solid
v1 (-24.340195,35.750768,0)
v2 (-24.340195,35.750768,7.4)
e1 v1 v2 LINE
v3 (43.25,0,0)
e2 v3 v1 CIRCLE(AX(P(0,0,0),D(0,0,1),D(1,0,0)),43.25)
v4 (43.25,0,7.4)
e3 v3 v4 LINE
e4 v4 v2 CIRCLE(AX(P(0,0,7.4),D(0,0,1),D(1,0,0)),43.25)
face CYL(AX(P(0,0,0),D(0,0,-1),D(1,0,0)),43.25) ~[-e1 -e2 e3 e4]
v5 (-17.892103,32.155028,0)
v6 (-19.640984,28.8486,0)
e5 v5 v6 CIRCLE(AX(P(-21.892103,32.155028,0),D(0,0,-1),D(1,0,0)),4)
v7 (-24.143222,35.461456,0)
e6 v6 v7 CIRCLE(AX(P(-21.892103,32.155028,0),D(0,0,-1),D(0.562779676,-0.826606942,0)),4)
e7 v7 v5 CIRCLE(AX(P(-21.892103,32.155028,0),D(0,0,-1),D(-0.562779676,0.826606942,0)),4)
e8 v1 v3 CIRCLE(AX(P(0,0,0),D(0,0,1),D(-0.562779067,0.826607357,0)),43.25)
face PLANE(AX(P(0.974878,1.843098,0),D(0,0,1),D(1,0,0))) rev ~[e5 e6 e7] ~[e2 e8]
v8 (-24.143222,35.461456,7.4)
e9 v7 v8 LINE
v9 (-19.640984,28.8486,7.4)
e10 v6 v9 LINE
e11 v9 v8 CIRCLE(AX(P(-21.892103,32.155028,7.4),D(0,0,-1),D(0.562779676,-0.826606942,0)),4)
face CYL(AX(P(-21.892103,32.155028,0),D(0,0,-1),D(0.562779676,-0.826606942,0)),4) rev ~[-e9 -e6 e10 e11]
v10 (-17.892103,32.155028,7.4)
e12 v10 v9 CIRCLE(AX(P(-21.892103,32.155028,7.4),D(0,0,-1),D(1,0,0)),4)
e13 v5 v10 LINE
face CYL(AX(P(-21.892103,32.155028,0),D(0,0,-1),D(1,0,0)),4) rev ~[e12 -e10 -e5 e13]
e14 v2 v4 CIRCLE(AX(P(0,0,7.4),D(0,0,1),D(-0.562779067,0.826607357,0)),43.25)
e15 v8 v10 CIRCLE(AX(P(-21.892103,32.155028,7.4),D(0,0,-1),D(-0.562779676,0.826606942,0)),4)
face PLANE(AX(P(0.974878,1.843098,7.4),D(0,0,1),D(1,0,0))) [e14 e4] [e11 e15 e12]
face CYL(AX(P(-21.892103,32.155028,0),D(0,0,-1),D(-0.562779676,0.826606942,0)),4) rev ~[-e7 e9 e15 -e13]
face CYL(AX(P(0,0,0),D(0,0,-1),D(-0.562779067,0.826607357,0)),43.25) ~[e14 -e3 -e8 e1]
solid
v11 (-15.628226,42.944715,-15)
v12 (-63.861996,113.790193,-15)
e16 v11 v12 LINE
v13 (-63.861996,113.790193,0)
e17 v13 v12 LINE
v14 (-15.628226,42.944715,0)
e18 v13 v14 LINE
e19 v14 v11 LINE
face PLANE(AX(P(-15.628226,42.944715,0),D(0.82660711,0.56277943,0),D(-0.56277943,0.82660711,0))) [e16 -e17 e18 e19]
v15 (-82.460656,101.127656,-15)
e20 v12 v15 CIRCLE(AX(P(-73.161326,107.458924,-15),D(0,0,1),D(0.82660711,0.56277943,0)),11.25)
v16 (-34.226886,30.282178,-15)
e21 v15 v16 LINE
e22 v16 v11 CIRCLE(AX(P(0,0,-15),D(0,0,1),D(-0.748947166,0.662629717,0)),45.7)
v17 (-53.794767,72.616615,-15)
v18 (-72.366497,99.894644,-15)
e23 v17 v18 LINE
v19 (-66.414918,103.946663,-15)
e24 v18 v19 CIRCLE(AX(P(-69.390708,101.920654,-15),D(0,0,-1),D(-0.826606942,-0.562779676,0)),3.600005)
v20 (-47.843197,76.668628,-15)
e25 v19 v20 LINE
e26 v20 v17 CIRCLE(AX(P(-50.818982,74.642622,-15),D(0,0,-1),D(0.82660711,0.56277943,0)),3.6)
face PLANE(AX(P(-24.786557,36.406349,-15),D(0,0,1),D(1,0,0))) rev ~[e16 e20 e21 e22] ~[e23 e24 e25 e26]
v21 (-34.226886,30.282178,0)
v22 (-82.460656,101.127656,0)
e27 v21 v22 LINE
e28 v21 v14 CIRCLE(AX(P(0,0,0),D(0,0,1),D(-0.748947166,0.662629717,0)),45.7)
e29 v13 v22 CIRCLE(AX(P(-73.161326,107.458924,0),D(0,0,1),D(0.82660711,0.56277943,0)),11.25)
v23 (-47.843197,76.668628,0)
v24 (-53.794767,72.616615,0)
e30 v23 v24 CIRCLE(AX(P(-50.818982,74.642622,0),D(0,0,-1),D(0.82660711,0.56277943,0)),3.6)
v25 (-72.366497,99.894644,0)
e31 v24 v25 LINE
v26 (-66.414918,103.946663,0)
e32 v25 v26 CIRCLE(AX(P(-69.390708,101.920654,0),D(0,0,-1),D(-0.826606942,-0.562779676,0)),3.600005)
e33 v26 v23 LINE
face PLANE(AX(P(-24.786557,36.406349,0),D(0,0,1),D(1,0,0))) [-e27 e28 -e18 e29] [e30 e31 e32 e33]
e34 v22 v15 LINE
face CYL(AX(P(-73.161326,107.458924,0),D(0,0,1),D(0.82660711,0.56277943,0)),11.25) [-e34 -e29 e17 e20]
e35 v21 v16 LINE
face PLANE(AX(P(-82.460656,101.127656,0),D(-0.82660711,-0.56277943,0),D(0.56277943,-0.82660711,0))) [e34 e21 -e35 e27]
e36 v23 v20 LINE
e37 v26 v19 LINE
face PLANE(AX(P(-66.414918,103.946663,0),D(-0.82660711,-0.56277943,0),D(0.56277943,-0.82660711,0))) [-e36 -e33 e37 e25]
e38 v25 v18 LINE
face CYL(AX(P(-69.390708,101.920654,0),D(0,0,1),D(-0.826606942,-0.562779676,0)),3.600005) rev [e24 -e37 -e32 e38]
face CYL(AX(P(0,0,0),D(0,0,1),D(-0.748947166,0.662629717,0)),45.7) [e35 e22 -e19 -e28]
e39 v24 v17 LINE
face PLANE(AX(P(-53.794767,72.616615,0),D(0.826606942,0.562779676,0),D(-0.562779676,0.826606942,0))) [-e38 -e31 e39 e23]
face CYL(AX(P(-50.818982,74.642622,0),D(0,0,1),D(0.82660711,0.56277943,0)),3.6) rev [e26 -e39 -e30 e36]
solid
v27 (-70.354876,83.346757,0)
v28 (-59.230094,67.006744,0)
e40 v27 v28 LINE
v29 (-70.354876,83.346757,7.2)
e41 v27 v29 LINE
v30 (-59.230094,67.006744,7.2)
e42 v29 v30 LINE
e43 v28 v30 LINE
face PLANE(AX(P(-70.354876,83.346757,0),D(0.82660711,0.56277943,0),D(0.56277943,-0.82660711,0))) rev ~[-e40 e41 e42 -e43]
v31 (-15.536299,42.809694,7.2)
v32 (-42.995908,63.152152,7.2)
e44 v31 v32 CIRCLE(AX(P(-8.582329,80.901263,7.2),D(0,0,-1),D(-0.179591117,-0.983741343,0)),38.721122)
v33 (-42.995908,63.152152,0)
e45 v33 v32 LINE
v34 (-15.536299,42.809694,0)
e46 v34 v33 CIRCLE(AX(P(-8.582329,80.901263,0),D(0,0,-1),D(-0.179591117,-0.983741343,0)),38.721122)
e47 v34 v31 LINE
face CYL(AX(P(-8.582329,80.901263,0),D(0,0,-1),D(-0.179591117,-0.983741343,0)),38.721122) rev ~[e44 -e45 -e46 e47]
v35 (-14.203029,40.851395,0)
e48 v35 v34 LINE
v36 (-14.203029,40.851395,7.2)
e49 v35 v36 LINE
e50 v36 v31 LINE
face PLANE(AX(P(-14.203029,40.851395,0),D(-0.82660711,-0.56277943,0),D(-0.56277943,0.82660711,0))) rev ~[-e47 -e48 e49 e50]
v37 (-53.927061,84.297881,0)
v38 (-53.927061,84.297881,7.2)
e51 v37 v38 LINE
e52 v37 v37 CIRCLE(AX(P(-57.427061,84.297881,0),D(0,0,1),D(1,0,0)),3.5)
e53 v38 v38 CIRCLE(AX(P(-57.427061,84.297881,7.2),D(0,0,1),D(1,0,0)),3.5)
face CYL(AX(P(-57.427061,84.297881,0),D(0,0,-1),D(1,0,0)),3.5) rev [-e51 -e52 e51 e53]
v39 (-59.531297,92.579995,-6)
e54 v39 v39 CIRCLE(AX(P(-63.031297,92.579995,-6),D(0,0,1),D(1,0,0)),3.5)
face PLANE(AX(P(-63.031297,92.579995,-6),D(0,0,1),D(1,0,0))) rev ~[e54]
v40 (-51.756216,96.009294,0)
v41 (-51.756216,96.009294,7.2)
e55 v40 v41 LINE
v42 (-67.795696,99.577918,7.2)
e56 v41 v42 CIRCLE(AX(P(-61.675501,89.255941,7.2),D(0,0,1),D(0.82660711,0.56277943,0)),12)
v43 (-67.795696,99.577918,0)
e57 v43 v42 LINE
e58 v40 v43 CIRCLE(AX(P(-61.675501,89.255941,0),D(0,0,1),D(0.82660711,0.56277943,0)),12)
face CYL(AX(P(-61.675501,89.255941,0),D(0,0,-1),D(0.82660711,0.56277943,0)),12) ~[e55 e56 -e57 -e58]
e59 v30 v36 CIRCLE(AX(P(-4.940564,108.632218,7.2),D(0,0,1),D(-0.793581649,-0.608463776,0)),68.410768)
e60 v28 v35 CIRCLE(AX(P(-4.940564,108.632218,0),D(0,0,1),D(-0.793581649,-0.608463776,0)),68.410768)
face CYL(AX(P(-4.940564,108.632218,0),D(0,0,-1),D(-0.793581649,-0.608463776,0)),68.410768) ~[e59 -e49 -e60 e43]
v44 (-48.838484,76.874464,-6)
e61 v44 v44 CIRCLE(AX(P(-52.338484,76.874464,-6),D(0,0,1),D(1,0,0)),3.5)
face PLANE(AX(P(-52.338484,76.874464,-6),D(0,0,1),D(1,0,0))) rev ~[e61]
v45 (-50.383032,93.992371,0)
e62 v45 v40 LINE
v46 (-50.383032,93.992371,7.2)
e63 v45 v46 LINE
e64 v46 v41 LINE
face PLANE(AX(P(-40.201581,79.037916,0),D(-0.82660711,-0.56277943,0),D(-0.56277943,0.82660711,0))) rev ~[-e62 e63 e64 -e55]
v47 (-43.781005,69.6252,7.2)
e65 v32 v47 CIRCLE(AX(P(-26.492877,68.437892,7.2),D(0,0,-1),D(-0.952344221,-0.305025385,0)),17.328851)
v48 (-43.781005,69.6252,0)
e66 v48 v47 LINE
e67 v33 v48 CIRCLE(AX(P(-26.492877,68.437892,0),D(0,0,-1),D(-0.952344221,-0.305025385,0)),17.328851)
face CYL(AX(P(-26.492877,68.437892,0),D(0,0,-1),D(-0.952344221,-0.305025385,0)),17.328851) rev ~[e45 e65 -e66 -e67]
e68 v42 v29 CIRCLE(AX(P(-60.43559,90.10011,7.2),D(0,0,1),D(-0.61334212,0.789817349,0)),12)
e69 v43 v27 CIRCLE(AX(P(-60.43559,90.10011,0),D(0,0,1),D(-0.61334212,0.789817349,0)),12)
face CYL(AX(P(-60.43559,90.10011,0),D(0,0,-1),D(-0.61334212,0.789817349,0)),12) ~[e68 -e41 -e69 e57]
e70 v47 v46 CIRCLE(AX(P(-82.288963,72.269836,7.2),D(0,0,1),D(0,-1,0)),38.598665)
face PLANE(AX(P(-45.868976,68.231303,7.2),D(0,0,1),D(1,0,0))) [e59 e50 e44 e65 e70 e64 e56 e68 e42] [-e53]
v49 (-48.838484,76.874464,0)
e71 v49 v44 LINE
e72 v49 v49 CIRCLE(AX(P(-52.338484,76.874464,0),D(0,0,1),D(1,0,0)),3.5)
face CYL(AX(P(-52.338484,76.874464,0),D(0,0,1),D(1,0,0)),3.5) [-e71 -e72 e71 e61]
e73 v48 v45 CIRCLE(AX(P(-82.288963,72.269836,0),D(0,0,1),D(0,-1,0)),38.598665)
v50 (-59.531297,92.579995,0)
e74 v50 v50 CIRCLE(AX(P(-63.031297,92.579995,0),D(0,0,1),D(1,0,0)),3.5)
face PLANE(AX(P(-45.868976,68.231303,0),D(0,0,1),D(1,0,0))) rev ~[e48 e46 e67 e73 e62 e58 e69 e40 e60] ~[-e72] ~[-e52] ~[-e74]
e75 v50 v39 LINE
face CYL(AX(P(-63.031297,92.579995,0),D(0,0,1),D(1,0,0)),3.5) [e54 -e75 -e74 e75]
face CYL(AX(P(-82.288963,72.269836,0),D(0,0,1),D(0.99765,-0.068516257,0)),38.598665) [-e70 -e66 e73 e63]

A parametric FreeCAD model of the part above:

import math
import FreeCAD as App
import Part
import Sketcher

V = App.Vector
Q = App.Units.Quantity


def edges_at(feature, points):
    """Names of the edges that pass closest to the given points."""
    edges = feature.Shape.Edges
    near = lambda p: min(range(len(edges)), key=lambda i: edges[i].distToShape(Part.Vertex(*p))[0])
    return sorted({f"Edge{near(p) + 1}" for p in points})

doc = App.newDocument("Part")
params = doc.addObject("Spreadsheet::Sheet", "Params")
for row, (alias, value) in enumerate([
    ("sketch1_radius", "45.7 mm"),
    ("sketch1_radius2", "3.6 mm"),
    ("sketch1_radius3", "11.25 mm"),
    ("sketch1_length", "33 mm"),
    ("sketch1_length2", "33 mm"),
    ("pad1_length", "15 mm"),
    ("sketch2_radius", "43.25 mm"),
    ("pocket1_length", "25 mm"),
    ("sketch3_radius", "4 mm"),
    ("sketch3_radius2", "43.25 mm"),
    ("pad2_length", "7.4 mm"),
    ("sketch4_diameter", "7 mm"),
    ("sketch4_radius", "12 mm"),
    ("sketch4_radius2", "12 mm"),
    ("pad3_length", "7.2 mm"),
    ("sketch5_diameter", "7 mm"),
    ("pad4_length", "6 mm"),
    ("fillet_radius", "38.598665 mm"),
], start=1):
    params.set(f"A{row}", alias)
    params.set(f"B{row}", "=" + value)
    params.setAlias(f"B{row}", alias)

body = doc.addObject("PartDesign::Body", "Body")

# Sketch on XY plane
sketch1 = body.newObject("Sketcher::SketchObject", "Sketch")
sketch1.AttachmentSupport = (doc.getObject("XY_Plane"), [""])
sketch1.MapMode = "FlatFace"
sketch1.addGeometry(Part.LineSegment(V(-82.460656, 101.127656, 0), V(-34.226886, 30.282178, 0)), False)
sketch1.addGeometry(Part.ArcOfCircle(Part.Circle(V(0, 0, 0), V(0, 0, 1), 45.7), math.radians(138.49926), math.radians(469.997205)), False)
sketch1.addGeometry(Part.LineSegment(V(-15.628226, 42.944715, 0), V(-63.861996, 113.790193, 0)), False)
sketch1.addGeometry(Part.ArcOfCircle(Part.Circle(V(-73.161326, 107.458924, 0), V(0, 0, 1), 11.25), math.radians(34.248233), math.radians(214.248233)), False)
sketch1.addGeometry(Part.ArcOfCircle(Part.Circle(V(-69.390708, 101.920654, 0), V(0, 0, 1), 3.600005), math.radians(34.248233), math.radians(214.24825)), False)
sketch1.addGeometry(Part.LineSegment(V(-66.414918, 103.946663, 0), V(-47.843197, 76.668628, 0)), False)
sketch1.addGeometry(Part.ArcOfCircle(Part.Circle(V(-50.818982, 74.642622, 0), V(0, 0, 1), 3.6), math.radians(-145.75175), math.radians(34.248233)), False)
sketch1.addGeometry(Part.LineSegment(V(-53.794767, 72.616615, 0), V(-72.366497, 99.894644, 0)), False)
sketch1.addConstraint(Sketcher.Constraint("Coincident", 0, 2, 1, 1))
sketch1.addConstraint(Sketcher.Constraint("Coincident", 1, 2, 2, 1))
sketch1.addConstraint(Sketcher.Constraint("Coincident", 2, 2, 3, 1))
sketch1.addConstraint(Sketcher.Constraint("Coincident", 3, 2, 0, 1))
sketch1.addConstraint(Sketcher.Constraint("Coincident", 4, 1, 5, 1))
sketch1.addConstraint(Sketcher.Constraint("Coincident", 5, 2, 6, 2))
sketch1.addConstraint(Sketcher.Constraint("Coincident", 6, 1, 7, 1))
sketch1.addConstraint(Sketcher.Constraint("Coincident", 7, 2, 4, 2))
sketch1.addConstraint(Sketcher.Constraint("Coincident", 1, 3, -1, 1))
sketch1.addConstraint(Sketcher.Constraint("Radius", 1, Q("45.7 mm")))
sketch1.addConstraint(Sketcher.Constraint("Radius", 6, Q("3.6 mm")))
sketch1.addConstraint(Sketcher.Constraint("Radius", 3, Q("11.25 mm")))
sketch1.addConstraint(Sketcher.Constraint("Distance", 5, Q("33 mm")))
sketch1.addConstraint(Sketcher.Constraint("Distance", 7, Q("33 mm")))
sketch1.addConstraint(Sketcher.Constraint("Radius", 4, Q("3.600005 mm")))
sketch1.addConstraint(Sketcher.Constraint("DistanceY", 3, 2, 4, 3, Q("0.792998 mm")))
sketch1.addConstraint(Sketcher.Constraint("DistanceX", 3, 3, 1, 2, Q("57.5331 mm")))
sketch1.addConstraint(Sketcher.Constraint("DistanceX", 2, 2, 5, 2, Q("16.018799 mm")))
sketch1.addConstraint(Sketcher.Constraint("DistanceX", 7, 2, 2, 2, Q("8.504501 mm")))
sketch1.addConstraint(Sketcher.Constraint("Distance", 0, Q("85.706349 mm")))
sketch1.addConstraint(Sketcher.Constraint("Distance", 2, Q("85.706349 mm")))
sketch1.addConstraint(Sketcher.Constraint("DistanceY", -1, 1, 0, 2, Q("30.282178 mm")))
sketch1.addConstraint(Sketcher.Constraint("DistanceX", 4, 1, -1, 1, Q("66.414918 mm")))
sketch1.addConstraint(Sketcher.Constraint("DistanceX", 3, 3, 4, 3, Q("3.770618 mm")))
sketch1.addConstraint(Sketcher.Constraint("DistanceY", 4, 3, 3, 3, Q("5.53827 mm")))
sketch1.addConstraint(Sketcher.Constraint("DistanceY", 6, 3, 4, 3, Q("27.278032 mm")))
sketch1.addConstraint(Sketcher.Constraint("DistanceX", 3, 3, 0, 2, Q("38.93444 mm")))
sketch1.setExpression("Constraints[9]", "Params.sketch1_radius")
sketch1.setExpression("Constraints[10]", "Params.sketch1_radius2")
sketch1.setExpression("Constraints[11]", "Params.sketch1_radius3")
sketch1.setExpression("Constraints[12]", "Params.sketch1_length")
sketch1.setExpression("Constraints[13]", "Params.sketch1_length2")
pad1 = body.newObject("PartDesign::Pad", "Pad")
pad1.Profile = sketch1
pad1.setExpression("Length", "Params.pad1_length")
pad1.Reversed = True

# Sketch on XY plane
sketch2 = body.newObject("Sketcher::SketchObject", "Sketch001")
sketch2.AttachmentSupport = (doc.getObject("XY_Plane"), [""])
sketch2.MapMode = "FlatFace"
sketch2.addGeometry(Part.ArcOfCircle(Part.Circle(V(0, 0, 0), V(0, 0, 1), 43), math.radians(109), math.radians(139)), False)
sketch2.addGeometry(Part.ArcOfCircle(Part.Circle(V(-5, 109, 0), V(0, 0, 1), 68), math.radians(-143), math.radians(-98)), False)
sketch2.addGeometry(Part.LineSegment(V(-59, 67, 0), V(-33, 28, 0)), False)
sketch2.addGeometry(Part.ArcOfCircle(Part.Circle(V(-9, 81, 0), V(0, 0, 1), 39), math.radians(-153), math.radians(-100)), False)
sketch2.addGeometry(Part.LineSegment(V(-16, 43, 0), V(-40, 79, 0)), False)
sketch2.addGeometry(Part.ArcOfCircle(Part.Circle(V(-26, 68, 0), V(0, 0, 1), 17), math.radians(142), math.radians(198)), False)
sketch2.addConstraint(Sketcher.Constraint("Coincident", 0, 1, 1, 2))
sketch2.addConstraint(Sketcher.Constraint("Coincident", 1, 1, 2, 1))
sketch2.addConstraint(Sketcher.Constraint("Coincident", 2, 2, 0, 2))
sketch2.addConstraint(Sketcher.Constraint("Coincident", 3, 2, 4, 1))
sketch2.addConstraint(Sketcher.Constraint("Coincident", 4, 2, 5, 1))
sketch2.addConstraint(Sketcher.Constraint("Coincident", 5, 2, 3, 1))
sketch2.addConstraint(Sketcher.Constraint("Coincident", 0, 3, -1, 1))
sketch2.addConstraint(Sketcher.Constraint("Parallel", 2, 4))
sketch2.addConstraint(Sketcher.Constraint("Radius", 0, Q("43.25 mm")))
sketch2.addConstraint(Sketcher.Constraint("Radius", 1, Q("68.410768 mm")))
sketch2.addConstraint(Sketcher.Constraint("Radius", 5, Q("17.328851 mm")))
sketch2.addConstraint(Sketcher.Constraint("Radius", 3, Q("38.721122 mm")))
sketch2.addConstraint(Sketcher.Constraint("DistanceX", 3, 2, -1, 1, Q("15.536299 mm")))
sketch2.addConstraint(Sketcher.Constraint("DistanceX", 0, 1, 3, 3, Q("5.6207 mm")))
sketch2.addConstraint(Sketcher.Constraint("DistanceY", 0, 1, 3, 2, Q("1.958299 mm")))
sketch2.addConstraint(Sketcher.Constraint("Distance", 4, Q("43.827619 mm")))
sketch2.addConstraint(Sketcher.Constraint("DistanceX", 3, 3, -1, 1, Q("8.582329 mm")))
sketch2.addConstraint(Sketcher.Constraint("DistanceY", -1, 1, 5, 3, Q("68.437892 mm")))
sketch2.addConstraint(Sketcher.Constraint("DistanceX", 2, 2, -1, 1, Q("32.801689 mm")))
sketch2.addConstraint(Sketcher.Constraint("DistanceX", 4, 2, -1, 1, Q("40.201581 mm")))
sketch2.addConstraint(Sketcher.Constraint("DistanceY", 1, 1, 5, 3, Q("1.431148 mm")))
sketch2.setExpression("Constraints[8]", "Params.sketch2_radius")
pocket1 = body.newObject("PartDesign::Pocket", "Pocket")
pocket1.Profile = sketch2
pocket1.setExpression("Length", "Params.pocket1_length")
pocket1.Reversed = True
body2 = doc.addObject("PartDesign::Body", "Body001")

# Sketch on XY plane
sketch3 = body2.newObject("Sketcher::SketchObject", "Sketch002")
sketch3.AttachmentSupport = (doc.getObject("XY_Plane001"), [""])
sketch3.MapMode = "FlatFace"
sketch3.addGeometry(Part.ArcOfCircle(Part.Circle(V(0, 0, 0), V(0, 0, 1), 43.2), math.radians(124), math.radians(360)), False)
sketch3.addGeometry(Part.ArcOfCircle(Part.Circle(V(0, 0, 0), V(0, 0, 1), 43.2), math.radians(0), math.radians(124)), False)
sketch3.addGeometry(Part.ArcOfCircle(Part.Circle(V(-21.9, 32.2, 0), V(0, 0, 1), 4), math.radians(-56), math.radians(0)), False)
sketch3.addGeometry(Part.ArcOfCircle(Part.Circle(V(-21.9, 32.2, 0), V(0, 0, 1), 4), math.radians(124), math.radians(304)), False)
sketch3.addGeometry(Part.ArcOfCircle(Part.Circle(V(-21.9, 32.2, 0), V(0, 0, 1), 4), math.radians(0), math.radians(124)), False)
sketch3.addConstraint(Sketcher.Constraint("Tangent", 0, 1, 1, 2))
sketch3.addConstraint(Sketcher.Constraint("Coincident", 1, 1, 0, 2))
sketch3.addConstraint(Sketcher.Constraint("Tangent", 2, 1, 3, 2))
sketch3.addConstraint(Sketcher.Constraint("Tangent", 3, 1, 4, 2))
sketch3.addConstraint(Sketcher.Constraint("Tangent", 4, 1, 2, 2))
sketch3.addConstraint(Sketcher.Constraint("Coincident", 0, 3, -1, 1))
sketch3.addConstraint(Sketcher.Constraint("PointOnObject", 1, 1, -1))
sketch3.addConstraint(Sketcher.Constraint("Horizontal", 3, 3, 4, 1))
sketch3.addConstraint(Sketcher.Constraint("Radius", 2, Q("4 mm")))
sketch3.addConstraint(Sketcher.Constraint("Radius", 0, Q("43.25 mm")))
sketch3.addConstraint(Sketcher.Constraint("DistanceY", -1, 1, 2, 1, Q("28.8486 mm")))
sketch3.addConstraint(Sketcher.Constraint("DistanceY", -1, 1, 0, 1, Q("35.750768 mm")))
sketch3.addConstraint(Sketcher.Constraint("DistanceX", 3, 1, -1, 1, Q("24.143222 mm")))
sketch3.addConstraint(Sketcher.Constraint("DistanceX", 0, 1, 2, 3, Q("2.448092 mm")))
sketch3.addConstraint(Sketcher.Constraint("DistanceY", 2, 3, 0, 1, Q("3.59574 mm")))
sketch3.setExpression("Constraints[8]", "Params.sketch3_radius")
sketch3.setExpression("Constraints[9]", "Params.sketch3_radius2")
pad2 = body2.newObject("PartDesign::Pad", "Pad001")
pad2.Profile = sketch3
pad2.setExpression("Length", "Params.pad2_length")
body3 = doc.addObject("PartDesign::Body", "Body002")

# Sketch on XY plane
sketch4 = body3.newObject("Sketcher::SketchObject", "Sketch003")
sketch4.AttachmentSupport = (doc.getObject("XY_Plane002"), [""])
sketch4.MapMode = "FlatFace"
sketch4.addGeometry(Part.ArcOfCircle(Part.Circle(V(-4.940564, 108.632218, 0), V(0, 0, 1), 68.410768), math.radians(-142.521493), math.radians(-97.781452)), False)
sketch4.addGeometry(Part.LineSegment(V(-14.203029, 40.851395, 0), V(-15.536299, 42.809694, 0)), False)
sketch4.addGeometry(Part.ArcOfCircle(Part.Circle(V(-8.582329, 80.901263, 0), V(0, 0, 1), 38.721122), math.radians(-152.717175), math.radians(-100.345944)), False)
sketch4.addGeometry(Part.ArcOfCircle(Part.Circle(V(-26.492877, 68.437892, 0), V(0, 0, 1), 17.328851), math.radians(142.28762), math.radians(197.759691)), False)
sketch4.addGeometry(Part.LineSegment(V(-40.201581, 79.037916, 0), V(-51.756216, 96.009294, 0)), False)
sketch4.addGeometry(Part.ArcOfCircle(Part.Circle(V(-61.675501, 89.255941, 0), V(0, 0, 1), 12), math.radians(34.248233), math.radians(120.664911)), False)
sketch4.addGeometry(Part.ArcOfCircle(Part.Circle(V(-60.43559, 90.10011, 0), V(0, 0, 1), 12), math.radians(127.831554), math.radians(214.248233)), False)
sketch4.addGeometry(Part.LineSegment(V(-70.354876, 83.346757, 0), V(-59.230094, 67.006744, 0)), False)
sketch4.addGeometry(Part.Circle(V(-57.427061, 84.297881, 0), V(0, 0, 1), 3.5), False)
sketch4.addConstraint(Sketcher.Constraint("Coincident", 0, 2, 1, 1))
sketch4.addConstraint(Sketcher.Constraint("Coincident", 1, 2, 2, 2))
sketch4.addConstraint(Sketcher.Constraint("Coincident", 2, 1, 3, 2))
sketch4.addConstraint(Sketcher.Constraint("Coincident", 3, 1, 4, 1))
sketch4.addConstraint(Sketcher.Constraint("Coincident", 4, 2, 5, 1))
sketch4.addConstraint(Sketcher.Constraint("Coincident", 5, 2, 6, 1))
sketch4.addConstraint(Sketcher.Constraint("Coincident", 6, 2, 7, 1))
sketch4.addConstraint(Sketcher.Constraint("Coincident", 7, 2, 0, 1))
sketch4.addConstraint(Sketcher.Constraint("Diameter", 8, Q("7 mm")))
sketch4.addConstraint(Sketcher.Constraint("Radius", 5, Q("12 mm")))
sketch4.addConstraint(Sketcher.Constraint("Radius", 6, Q("12 mm")))
sketch4.addConstraint(Sketcher.Constraint("Radius", 0, Q("68.410768 mm")))
sketch4.addConstraint(Sketcher.Constraint("Radius", 3, Q("17.328851 mm")))
sketch4.addConstraint(Sketcher.Constraint("Radius", 2, Q("38.721122 mm")))
sketch4.addConstraint(Sketcher.Constraint("DistanceX", 5, 3, -1, 1, Q("61.675501 mm")))
sketch4.addConstraint(Sketcher.Constraint("DistanceX", 1, 2, -1, 1, Q("15.536299 mm")))
sketch4.addConstraint(Sketcher.Constraint("DistanceX", 0, 2, 2, 3, Q("5.6207 mm")))
sketch4.addConstraint(Sketcher.Constraint("DistanceY", 0, 2, 1, 2, Q("1.958299 mm")))
sketch4.addConstraint(Sketcher.Constraint("Distance", 1, Q("2.369081 mm")))
sketch4.addConstraint(Sketcher.Constraint("Distance", 7, Q("19.76757 mm")))
sketch4.addConstraint(Sketcher.Constraint("DistanceY", -1, 1, 3, 3, Q("68.437892 mm")))
sketch4.addConstraint(Sketcher.Constraint("DistanceY", -1, 1, 5, 3, Q("89.255941 mm")))
sketch4.addConstraint(Sketcher.Constraint("DistanceX", 6, 3, -1, 1, Q("60.43559 mm")))
sketch4.addConstraint(Sketcher.Constraint("DistanceY", -1, 1, 6, 3, Q("90.10011 mm")))
sketch4.addConstraint(Sketcher.Constraint("DistanceX", 8, 3, -1, 1, Q("57.427061 mm")))
sketch4.addConstraint(Sketcher.Constraint("DistanceY", -1, 1, 8, 3, Q("84.297881 mm")))
sketch4.addConstraint(Sketcher.Constraint("DistanceX", 3, 1, -1, 1, Q("40.201581 mm")))
sketch4.addConstraint(Sketcher.Constraint("DistanceY", 3, 3, 2, 3, Q("12.463371 mm")))
sketch4.addConstraint(Sketcher.Constraint("DistanceX", 2, 1, 3, 3, Q("16.503031 mm")))
sketch4.addConstraint(Sketcher.Constraint("DistanceY", 3, 1, 4, 2, Q("16.971379 mm")))
sketch4.addConstraint(Sketcher.Constraint("DistanceX", 6, 2, 5, 2, Q("2.55918 mm")))
sketch4.addConstraint(Sketcher.Constraint("DistanceY", 2, 1, 7, 2, Q("3.854591 mm")))
sketch4.setExpression("Constraints[8]", "Params.sketch4_diameter")
sketch4.setExpression("Constraints[9]", "Params.sketch4_radius")
sketch4.setExpression("Constraints[10]", "Params.sketch4_radius2")
pad3 = body3.newObject("PartDesign::Pad", "Pad002")
pad3.Profile = sketch4
pad3.setExpression("Length", "Params.pad3_length")

# Sketch on XY plane
sketch5 = body3.newObject("Sketcher::SketchObject", "Sketch004")
sketch5.AttachmentSupport = (doc.getObject("XY_Plane002"), [""])
sketch5.MapMode = "FlatFace"
sketch5.addGeometry(Part.Circle(V(-63, 92.6, 0), V(0, 0, 1), 3.5), False)
sketch5.addGeometry(Part.Circle(V(-52.3, 76.9, 0), V(0, 0, 1), 3.5), False)
sketch5.addConstraint(Sketcher.Constraint("Equal", 0, 1))
sketch5.addConstraint(Sketcher.Constraint("Diameter", 0, Q("7 mm")))
sketch5.addConstraint(Sketcher.Constraint("DistanceY", 1, 3, 0, 3, Q("15.705532 mm")))
sketch5.addConstraint(Sketcher.Constraint("DistanceX", 0, 3, -1, 1, Q("63.031297 mm")))
sketch5.addConstraint(Sketcher.Constraint("DistanceY", -1, 1, 0, 3, Q("92.579995 mm")))
sketch5.addConstraint(Sketcher.Constraint("DistanceX", 1, 3, -1, 1, Q("52.338484 mm")))
sketch5.setExpression("Constraints[1]", "Params.sketch5_diameter")
pad4 = body3.newObject("PartDesign::Pad", "Pad003")
pad4.Profile = sketch5
pad4.setExpression("Length", "Params.pad4_length")
pad4.Reversed = True
doc.recompute()

fillet = body3.newObject("PartDesign::Fillet", "Fillet")
fillet.Base = (pad4, edges_at(pad4, [(-40.202, 79.038, 3.6)]))
fillet.setExpression("Radius", "Params.fillet_radius")

doc.recompute()
